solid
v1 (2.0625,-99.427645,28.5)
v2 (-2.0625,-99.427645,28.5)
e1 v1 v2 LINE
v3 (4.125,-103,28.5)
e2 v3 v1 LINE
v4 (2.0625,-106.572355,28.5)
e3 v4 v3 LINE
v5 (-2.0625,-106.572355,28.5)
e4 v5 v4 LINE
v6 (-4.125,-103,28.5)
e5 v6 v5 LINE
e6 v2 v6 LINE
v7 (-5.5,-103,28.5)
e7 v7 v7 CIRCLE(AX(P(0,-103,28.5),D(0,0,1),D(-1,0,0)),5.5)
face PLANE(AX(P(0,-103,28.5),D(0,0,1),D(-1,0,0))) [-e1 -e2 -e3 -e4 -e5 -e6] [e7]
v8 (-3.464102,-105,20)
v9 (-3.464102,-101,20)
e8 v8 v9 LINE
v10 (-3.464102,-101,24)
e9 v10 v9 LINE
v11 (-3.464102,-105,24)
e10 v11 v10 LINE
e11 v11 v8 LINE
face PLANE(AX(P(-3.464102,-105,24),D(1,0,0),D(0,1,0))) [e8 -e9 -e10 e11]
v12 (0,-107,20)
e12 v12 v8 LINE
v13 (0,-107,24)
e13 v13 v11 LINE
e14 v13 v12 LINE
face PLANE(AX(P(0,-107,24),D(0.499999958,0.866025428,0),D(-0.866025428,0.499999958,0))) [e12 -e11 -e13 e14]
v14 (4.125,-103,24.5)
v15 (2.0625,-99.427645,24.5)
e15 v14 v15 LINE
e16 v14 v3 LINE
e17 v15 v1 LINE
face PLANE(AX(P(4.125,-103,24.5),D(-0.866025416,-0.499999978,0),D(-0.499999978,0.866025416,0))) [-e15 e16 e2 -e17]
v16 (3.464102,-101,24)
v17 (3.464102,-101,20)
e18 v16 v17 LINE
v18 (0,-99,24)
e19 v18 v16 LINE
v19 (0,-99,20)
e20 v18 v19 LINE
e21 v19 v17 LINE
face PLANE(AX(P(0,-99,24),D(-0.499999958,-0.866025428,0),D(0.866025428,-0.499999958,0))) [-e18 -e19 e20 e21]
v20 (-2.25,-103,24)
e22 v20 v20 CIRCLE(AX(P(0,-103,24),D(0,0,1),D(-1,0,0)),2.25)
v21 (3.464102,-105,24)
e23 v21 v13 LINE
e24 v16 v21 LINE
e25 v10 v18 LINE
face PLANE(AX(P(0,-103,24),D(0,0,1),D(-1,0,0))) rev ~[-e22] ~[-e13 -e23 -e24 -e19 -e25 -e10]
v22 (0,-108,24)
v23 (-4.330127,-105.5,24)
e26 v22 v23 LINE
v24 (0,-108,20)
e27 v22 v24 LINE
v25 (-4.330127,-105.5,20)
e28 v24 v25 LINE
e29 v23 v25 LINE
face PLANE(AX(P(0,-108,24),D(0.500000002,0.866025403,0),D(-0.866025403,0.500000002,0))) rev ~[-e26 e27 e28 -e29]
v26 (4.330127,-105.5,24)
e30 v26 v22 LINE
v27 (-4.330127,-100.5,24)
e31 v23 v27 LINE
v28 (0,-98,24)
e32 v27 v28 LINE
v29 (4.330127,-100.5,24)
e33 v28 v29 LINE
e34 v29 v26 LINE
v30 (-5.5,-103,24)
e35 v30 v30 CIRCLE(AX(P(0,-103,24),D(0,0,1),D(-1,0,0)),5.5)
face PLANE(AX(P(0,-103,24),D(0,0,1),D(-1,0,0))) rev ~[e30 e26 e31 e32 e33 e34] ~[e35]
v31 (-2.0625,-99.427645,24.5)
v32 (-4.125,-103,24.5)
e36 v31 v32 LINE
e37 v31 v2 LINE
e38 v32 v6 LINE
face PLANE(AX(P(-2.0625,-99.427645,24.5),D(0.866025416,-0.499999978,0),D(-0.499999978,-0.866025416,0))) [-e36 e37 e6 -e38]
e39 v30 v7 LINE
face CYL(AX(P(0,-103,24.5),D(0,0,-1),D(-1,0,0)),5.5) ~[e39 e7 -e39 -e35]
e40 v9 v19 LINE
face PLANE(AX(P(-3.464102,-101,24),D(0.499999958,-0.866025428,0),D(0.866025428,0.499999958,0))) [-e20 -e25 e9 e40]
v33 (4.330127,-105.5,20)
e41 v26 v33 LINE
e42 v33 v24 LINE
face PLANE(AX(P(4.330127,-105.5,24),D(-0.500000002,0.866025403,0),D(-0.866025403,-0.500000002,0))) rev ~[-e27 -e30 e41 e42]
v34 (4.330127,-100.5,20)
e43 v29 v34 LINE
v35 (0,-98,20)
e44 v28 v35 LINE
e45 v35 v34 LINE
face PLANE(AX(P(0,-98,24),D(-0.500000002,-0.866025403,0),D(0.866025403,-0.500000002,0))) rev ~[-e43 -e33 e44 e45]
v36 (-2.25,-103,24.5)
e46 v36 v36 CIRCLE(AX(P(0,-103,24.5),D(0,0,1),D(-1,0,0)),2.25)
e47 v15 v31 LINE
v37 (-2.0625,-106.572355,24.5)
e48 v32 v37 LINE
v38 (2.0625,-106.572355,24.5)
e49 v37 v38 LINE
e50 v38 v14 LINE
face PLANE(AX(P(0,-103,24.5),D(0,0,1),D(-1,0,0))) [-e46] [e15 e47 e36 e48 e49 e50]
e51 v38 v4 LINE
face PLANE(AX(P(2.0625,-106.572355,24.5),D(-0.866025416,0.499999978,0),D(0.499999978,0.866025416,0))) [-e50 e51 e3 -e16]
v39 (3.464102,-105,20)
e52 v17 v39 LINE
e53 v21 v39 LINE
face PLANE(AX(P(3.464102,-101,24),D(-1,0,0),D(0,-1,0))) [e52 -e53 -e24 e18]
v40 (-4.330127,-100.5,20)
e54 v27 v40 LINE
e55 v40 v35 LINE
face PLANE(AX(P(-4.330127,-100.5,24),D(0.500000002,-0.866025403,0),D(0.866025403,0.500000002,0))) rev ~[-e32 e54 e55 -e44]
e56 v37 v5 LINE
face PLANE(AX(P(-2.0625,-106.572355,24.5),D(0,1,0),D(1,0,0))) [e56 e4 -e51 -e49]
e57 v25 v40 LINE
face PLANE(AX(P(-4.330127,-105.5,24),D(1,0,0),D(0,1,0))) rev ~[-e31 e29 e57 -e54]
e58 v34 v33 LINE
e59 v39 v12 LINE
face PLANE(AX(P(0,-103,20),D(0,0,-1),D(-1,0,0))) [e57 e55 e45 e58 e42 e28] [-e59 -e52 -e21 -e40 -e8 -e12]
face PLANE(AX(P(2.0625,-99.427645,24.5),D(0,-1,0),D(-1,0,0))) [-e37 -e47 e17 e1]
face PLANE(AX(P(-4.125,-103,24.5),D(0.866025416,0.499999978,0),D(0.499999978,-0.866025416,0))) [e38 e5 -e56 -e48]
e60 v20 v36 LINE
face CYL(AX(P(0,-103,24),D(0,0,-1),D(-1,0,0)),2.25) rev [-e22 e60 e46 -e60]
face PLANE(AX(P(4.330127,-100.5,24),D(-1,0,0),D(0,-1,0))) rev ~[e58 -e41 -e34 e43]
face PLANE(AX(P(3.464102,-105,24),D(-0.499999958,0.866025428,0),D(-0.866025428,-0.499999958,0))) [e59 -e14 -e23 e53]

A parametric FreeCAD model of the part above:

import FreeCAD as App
import Part
import Sketcher

V = App.Vector
Q = App.Units.Quantity

doc = App.newDocument("Part")
body = doc.addObject("PartDesign::Body", "Body")

sketch1 = body.newObject("Sketcher::SketchObject", "Sketch")
sketch1.AttachmentSupport = (doc.getObject("XZ_Plane"), [""])
sketch1.MapMode = "FlatFace"
sketch1.addGeometry([
    Part.Circle(V(0, 0, 0), V(0, 0, 1), 5.5),
    Part.Circle(V(0, 0, 0), V(0, 0, 1), 2.2),
], False)
sketch1.addConstraint([
    Sketcher.Constraint("Coincident", 0, 3, -1, 1),
    Sketcher.Constraint("Coincident", 1, 3, -1, 1),
    Sketcher.Constraint("Diameter", 0, Q("11 mm")),
    Sketcher.Constraint("Diameter", 1, Q("4.5 mm")),
])
pad1 = body.newObject("PartDesign::Pad", "Pad")
pad1.Profile = sketch1
pad1.Length = 0.5

sketch2 = body.newObject("Sketcher::SketchObject", "Sketch001")
sketch2.AttachmentSupport = (doc.getObject("XZ_Plane"), [""])
sketch2.MapMode = "FlatFace"
sketch2.AttachmentOffset = App.Placement(V(0, 0, 0.5), App.Rotation())
sketch2.addGeometry([
    Part.Circle(V(0, 0, 0), V(0, 0, 1), 5.5),
    Part.LineSegment(V(2.1, -3.6, 0), V(-2.1, -3.6, 0)),
    Part.LineSegment(V(-2.1, -3.6, 0), V(-4.1, 0, 0)),
    Part.LineSegment(V(-4.1, 0, 0), V(-2.1, 3.6, 0)),
    Part.LineSegment(V(-2.1, 3.6, 0), V(2.1, 3.6, 0)),
    Part.LineSegment(V(2.1, 3.6, 0), V(4.1, 0, 0)),
    Part.LineSegment(V(4.1, 0, 0), V(2.1, -3.6, 0)),
], False)
sketch2.addConstraint([
    Sketcher.Constraint("Coincident", 1, 2, 2, 1),
    Sketcher.Constraint("Coincident", 2, 2, 3, 1),
    Sketcher.Constraint("Coincident", 3, 2, 4, 1),
    Sketcher.Constraint("Coincident", 4, 2, 5, 1),
    Sketcher.Constraint("Coincident", 5, 2, 6, 1),
    Sketcher.Constraint("Coincident", 6, 2, 1, 1),
    Sketcher.Constraint("Horizontal", 1),
    Sketcher.Constraint("Horizontal", 4),
    Sketcher.Constraint("Coincident", 0, 3, -1, 1),
    Sketcher.Constraint("Symmetric", 1, 2, 4, 2, -1, 1),
    Sketcher.Constraint("Symmetric", 2, 2, 5, 2, -1, 1),
    Sketcher.Constraint("PointOnObject", 2, 2, -1),
    Sketcher.Constraint("Parallel", 3, 6),
    Sketcher.Constraint("Vertical", 1, 2, 3, 2),
    Sketcher.Constraint("Diameter", 0, Q("11 mm")),
    Sketcher.Constraint("Angle", 2, Q("119.999999 deg")),
    Sketcher.Constraint("DistanceX", 1, 2, 1, 1, Q("4.125 mm")),
    Sketcher.Constraint("DistanceX", 2, 2, 5, 2, Q("8.25 mm")),
])
pad2 = body.newObject("PartDesign::Pad", "Pad001")
pad2.Profile = sketch2
pad2.Length = 4

sketch3 = body.newObject("Sketcher::SketchObject", "Sketch002")
sketch3.AttachmentSupport = (doc.getObject("XZ_Plane"), [""])
sketch3.MapMode = "FlatFace"
sketch3.addGeometry([
    Part.LineSegment(V(0, -5, 0), V(-4.3, -2.5, 0)),
    Part.LineSegment(V(-4.3, -2.5, 0), V(-4.3, 2.5, 0)),
    Part.LineSegment(V(-4.3, 2.5, 0), V(0, 5, 0)),
    Part.LineSegment(V(0, 5, 0), V(4.3, 2.5, 0)),
    Part.LineSegment(V(4.3, 2.5, 0), V(4.3, -2.5, 0)),
    Part.LineSegment(V(4.3, -2.5, 0), V(0, -5, 0)),
    Part.LineSegment(V(-3.5, -2, 0), V(0, -4, 0)),
    Part.LineSegment(V(0, -4, 0), V(3.5, -2, 0)),
    Part.LineSegment(V(3.5, -2, 0), V(3.5, 2, 0)),
    Part.LineSegment(V(3.5, 2, 0), V(0, 4, 0)),
    Part.LineSegment(V(0, 4, 0), V(-3.5, 2, 0)),
    Part.LineSegment(V(-3.5, 2, 0), V(-3.5, -2, 0)),
], False)
sketch3.addConstraint([
    Sketcher.Constraint("Coincident", 0, 2, 1, 1),
    Sketcher.Constraint("Coincident", 1, 2, 2, 1),
    Sketcher.Constraint("Coincident", 2, 2, 3, 1),
    Sketcher.Constraint("Coincident", 3, 2, 4, 1),
    Sketcher.Constraint("Coincident", 4, 2, 5, 1),
    Sketcher.Constraint("Coincident", 5, 2, 0, 1),
    Sketcher.Constraint("Coincident", 6, 2, 7, 1),
    Sketcher.Constraint("Coincident", 7, 2, 8, 1),
    Sketcher.Constraint("Coincident", 8, 2, 9, 1),
    Sketcher.Constraint("Coincident", 9, 2, 10, 1),
    Sketcher.Constraint("Coincident", 10, 2, 11, 1),
    Sketcher.Constraint("Coincident", 11, 2, 6, 1),
    Sketcher.Constraint("Vertical", 1),
    Sketcher.Constraint("Vertical", 4),
    Sketcher.Constraint("Vertical", 8),
    Sketcher.Constraint("Vertical", 11),
    Sketcher.Constraint("Symmetric", 0, 2, 3, 2, -1, 1),
    Sketcher.Constraint("Symmetric", 2, 2, 5, 2, -1, 1),
    Sketcher.Constraint("Symmetric", 6, 2, 9, 2, -1, 1),
    Sketcher.Constraint("Symmetric", 7, 2, 10, 2, -1, 1),
    Sketcher.Constraint("PointOnObject", 2, 2, -2),
    Sketcher.Constraint("PointOnObject", 6, 2, -2),
    Sketcher.Constraint("Parallel", 2, 5),
    Sketcher.Constraint("Parallel", 3, 6),
    Sketcher.Constraint("Parallel", 5, 7),
    Sketcher.Constraint("Parallel", 6, 9),
    Sketcher.Constraint("Horizontal", 1, 2, 3, 2),
    Sketcher.Constraint("DistanceY", 1, 1, 1, 2, Q("5 mm")),
    Sketcher.Constraint("DistanceY", 8, 1, 8, 2, Q("4 mm")),
    Sketcher.Constraint("Angle", 0, Q("150 deg")),
    Sketcher.Constraint("Distance", 0, Q("5 mm")),
    Sketcher.Constraint("Distance", 6, Q("4 mm")),
])
pad3 = body.newObject("PartDesign::Pad", "Pad002")
pad3.Profile = sketch3
pad3.Length = 4
pad3.Reversed = True
body2 = doc.addObject("PartDesign::Body", "Body001")
doc.recompute()

body.Placement = App.Placement(V(0, 0, 0), App.Rotation(V(1, 0, 0), 270))
boolean = body2.newObject("PartDesign::Boolean", "Boolean")
boolean.Type = "Fuse"
boolean.addObjects([body])
body3 = doc.addObject("PartDesign::Body", "Body002")
doc.recompute()

body2.Placement = App.Placement(V(0, -103, 24), App.Rotation(V(0, 0, 1), 180))
boolean2 = body3.newObject("PartDesign::Boolean", "Boolean001")
boolean2.Type = "Fuse"
boolean2.addObjects([body2])

doc.recompute()
